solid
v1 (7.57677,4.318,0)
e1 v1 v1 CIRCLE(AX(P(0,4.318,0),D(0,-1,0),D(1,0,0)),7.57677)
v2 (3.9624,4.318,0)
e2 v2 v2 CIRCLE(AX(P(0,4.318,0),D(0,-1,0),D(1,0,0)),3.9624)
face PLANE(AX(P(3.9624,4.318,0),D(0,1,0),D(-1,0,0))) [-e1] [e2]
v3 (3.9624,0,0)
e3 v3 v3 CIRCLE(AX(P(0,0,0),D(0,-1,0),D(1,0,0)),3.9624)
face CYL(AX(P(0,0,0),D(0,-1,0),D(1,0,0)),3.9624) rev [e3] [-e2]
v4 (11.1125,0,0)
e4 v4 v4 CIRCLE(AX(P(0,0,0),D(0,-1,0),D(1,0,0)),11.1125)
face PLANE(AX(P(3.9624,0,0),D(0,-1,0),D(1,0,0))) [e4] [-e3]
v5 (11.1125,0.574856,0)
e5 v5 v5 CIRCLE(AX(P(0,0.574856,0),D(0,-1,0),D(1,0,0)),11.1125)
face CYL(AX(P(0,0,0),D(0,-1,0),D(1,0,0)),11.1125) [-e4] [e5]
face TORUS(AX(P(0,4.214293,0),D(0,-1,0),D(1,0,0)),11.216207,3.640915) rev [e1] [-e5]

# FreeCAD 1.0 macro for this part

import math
import FreeCAD as App
import Part
import Sketcher
Q = App.Units.Quantity

doc = App.newDocument("Part")
body = doc.addObject("PartDesign::Body", "Body")

sketch1 = body.newObject("Sketcher::SketchObject", "Sketch")
sketch1.AttachmentSupport = (doc.getObject("XY_Plane"), [""])
sketch1.MapMode = "FlatFace"
sketch1.addGeometry(Part.LineSegment(App.Vector(4, 4.3, 0), App.Vector(4, 0, 0)), False)
sketch1.addGeometry(Part.LineSegment(App.Vector(4, 0, 0), App.Vector(11.1, 0, 0)), False)
sketch1.addGeometry(Part.LineSegment(App.Vector(11.1, 0, 0), App.Vector(11.1, 0.6, 0)), False)
sketch1.addGeometry(Part.ArcOfCircle(Part.Circle(App.Vector(11.2, 4.2, 0), App.Vector(0, 0, 1), 3.6), math.radians(178), math.radians(268)), False)
sketch1.addGeometry(Part.LineSegment(App.Vector(7.6, 4.3, 0), App.Vector(4, 4.3, 0)), False)
sketch1.addConstraint(Sketcher.Constraint("Coincident", 0, 2, 1, 1))
sketch1.addConstraint(Sketcher.Constraint("Coincident", 1, 2, 2, 1))
sketch1.addConstraint(Sketcher.Constraint("Coincident", 2, 2, 3, 2))
sketch1.addConstraint(Sketcher.Constraint("Coincident", 3, 1, 4, 1))
sketch1.addConstraint(Sketcher.Constraint("Coincident", 4, 2, 0, 1))
sketch1.addConstraint(Sketcher.Constraint("Vertical", 0))
sketch1.addConstraint(Sketcher.Constraint("Horizontal", 1))
sketch1.addConstraint(Sketcher.Constraint("Vertical", 2))
sketch1.addConstraint(Sketcher.Constraint("Horizontal", 4))
sketch1.addConstraint(Sketcher.Constraint("PointOnObject", 0, 2, -1))
sketch1.addConstraint(Sketcher.Constraint("DistanceY", 0, 2, 0, 1, Q("0.17 in")))
sketch1.addConstraint(Sketcher.Constraint("DistanceX", 1, 1, 1, 2, Q("0.2815 in")))
sketch1.addConstraint(Sketcher.Constraint("DistanceX", -1, 1, 0, 2, Q("0.156 in")))
sketch1.addConstraint(Sketcher.Constraint("Radius", 3, Q("3.640915 mm")))
sketch1.addConstraint(Sketcher.Constraint("DistanceX", 4, 2, 4, 1, Q("3.61437 mm")))
sketch1.addConstraint(Sketcher.Constraint("DistanceY", 2, 1, 2, 2, Q("0.574856 mm")))
revolution = body.newObject("PartDesign::Revolution", "Revolution")
revolution.Profile = sketch1
revolution.ReferenceAxis = (sketch1, ["V_Axis"])
revolution.Angle = 360

doc.recompute()
